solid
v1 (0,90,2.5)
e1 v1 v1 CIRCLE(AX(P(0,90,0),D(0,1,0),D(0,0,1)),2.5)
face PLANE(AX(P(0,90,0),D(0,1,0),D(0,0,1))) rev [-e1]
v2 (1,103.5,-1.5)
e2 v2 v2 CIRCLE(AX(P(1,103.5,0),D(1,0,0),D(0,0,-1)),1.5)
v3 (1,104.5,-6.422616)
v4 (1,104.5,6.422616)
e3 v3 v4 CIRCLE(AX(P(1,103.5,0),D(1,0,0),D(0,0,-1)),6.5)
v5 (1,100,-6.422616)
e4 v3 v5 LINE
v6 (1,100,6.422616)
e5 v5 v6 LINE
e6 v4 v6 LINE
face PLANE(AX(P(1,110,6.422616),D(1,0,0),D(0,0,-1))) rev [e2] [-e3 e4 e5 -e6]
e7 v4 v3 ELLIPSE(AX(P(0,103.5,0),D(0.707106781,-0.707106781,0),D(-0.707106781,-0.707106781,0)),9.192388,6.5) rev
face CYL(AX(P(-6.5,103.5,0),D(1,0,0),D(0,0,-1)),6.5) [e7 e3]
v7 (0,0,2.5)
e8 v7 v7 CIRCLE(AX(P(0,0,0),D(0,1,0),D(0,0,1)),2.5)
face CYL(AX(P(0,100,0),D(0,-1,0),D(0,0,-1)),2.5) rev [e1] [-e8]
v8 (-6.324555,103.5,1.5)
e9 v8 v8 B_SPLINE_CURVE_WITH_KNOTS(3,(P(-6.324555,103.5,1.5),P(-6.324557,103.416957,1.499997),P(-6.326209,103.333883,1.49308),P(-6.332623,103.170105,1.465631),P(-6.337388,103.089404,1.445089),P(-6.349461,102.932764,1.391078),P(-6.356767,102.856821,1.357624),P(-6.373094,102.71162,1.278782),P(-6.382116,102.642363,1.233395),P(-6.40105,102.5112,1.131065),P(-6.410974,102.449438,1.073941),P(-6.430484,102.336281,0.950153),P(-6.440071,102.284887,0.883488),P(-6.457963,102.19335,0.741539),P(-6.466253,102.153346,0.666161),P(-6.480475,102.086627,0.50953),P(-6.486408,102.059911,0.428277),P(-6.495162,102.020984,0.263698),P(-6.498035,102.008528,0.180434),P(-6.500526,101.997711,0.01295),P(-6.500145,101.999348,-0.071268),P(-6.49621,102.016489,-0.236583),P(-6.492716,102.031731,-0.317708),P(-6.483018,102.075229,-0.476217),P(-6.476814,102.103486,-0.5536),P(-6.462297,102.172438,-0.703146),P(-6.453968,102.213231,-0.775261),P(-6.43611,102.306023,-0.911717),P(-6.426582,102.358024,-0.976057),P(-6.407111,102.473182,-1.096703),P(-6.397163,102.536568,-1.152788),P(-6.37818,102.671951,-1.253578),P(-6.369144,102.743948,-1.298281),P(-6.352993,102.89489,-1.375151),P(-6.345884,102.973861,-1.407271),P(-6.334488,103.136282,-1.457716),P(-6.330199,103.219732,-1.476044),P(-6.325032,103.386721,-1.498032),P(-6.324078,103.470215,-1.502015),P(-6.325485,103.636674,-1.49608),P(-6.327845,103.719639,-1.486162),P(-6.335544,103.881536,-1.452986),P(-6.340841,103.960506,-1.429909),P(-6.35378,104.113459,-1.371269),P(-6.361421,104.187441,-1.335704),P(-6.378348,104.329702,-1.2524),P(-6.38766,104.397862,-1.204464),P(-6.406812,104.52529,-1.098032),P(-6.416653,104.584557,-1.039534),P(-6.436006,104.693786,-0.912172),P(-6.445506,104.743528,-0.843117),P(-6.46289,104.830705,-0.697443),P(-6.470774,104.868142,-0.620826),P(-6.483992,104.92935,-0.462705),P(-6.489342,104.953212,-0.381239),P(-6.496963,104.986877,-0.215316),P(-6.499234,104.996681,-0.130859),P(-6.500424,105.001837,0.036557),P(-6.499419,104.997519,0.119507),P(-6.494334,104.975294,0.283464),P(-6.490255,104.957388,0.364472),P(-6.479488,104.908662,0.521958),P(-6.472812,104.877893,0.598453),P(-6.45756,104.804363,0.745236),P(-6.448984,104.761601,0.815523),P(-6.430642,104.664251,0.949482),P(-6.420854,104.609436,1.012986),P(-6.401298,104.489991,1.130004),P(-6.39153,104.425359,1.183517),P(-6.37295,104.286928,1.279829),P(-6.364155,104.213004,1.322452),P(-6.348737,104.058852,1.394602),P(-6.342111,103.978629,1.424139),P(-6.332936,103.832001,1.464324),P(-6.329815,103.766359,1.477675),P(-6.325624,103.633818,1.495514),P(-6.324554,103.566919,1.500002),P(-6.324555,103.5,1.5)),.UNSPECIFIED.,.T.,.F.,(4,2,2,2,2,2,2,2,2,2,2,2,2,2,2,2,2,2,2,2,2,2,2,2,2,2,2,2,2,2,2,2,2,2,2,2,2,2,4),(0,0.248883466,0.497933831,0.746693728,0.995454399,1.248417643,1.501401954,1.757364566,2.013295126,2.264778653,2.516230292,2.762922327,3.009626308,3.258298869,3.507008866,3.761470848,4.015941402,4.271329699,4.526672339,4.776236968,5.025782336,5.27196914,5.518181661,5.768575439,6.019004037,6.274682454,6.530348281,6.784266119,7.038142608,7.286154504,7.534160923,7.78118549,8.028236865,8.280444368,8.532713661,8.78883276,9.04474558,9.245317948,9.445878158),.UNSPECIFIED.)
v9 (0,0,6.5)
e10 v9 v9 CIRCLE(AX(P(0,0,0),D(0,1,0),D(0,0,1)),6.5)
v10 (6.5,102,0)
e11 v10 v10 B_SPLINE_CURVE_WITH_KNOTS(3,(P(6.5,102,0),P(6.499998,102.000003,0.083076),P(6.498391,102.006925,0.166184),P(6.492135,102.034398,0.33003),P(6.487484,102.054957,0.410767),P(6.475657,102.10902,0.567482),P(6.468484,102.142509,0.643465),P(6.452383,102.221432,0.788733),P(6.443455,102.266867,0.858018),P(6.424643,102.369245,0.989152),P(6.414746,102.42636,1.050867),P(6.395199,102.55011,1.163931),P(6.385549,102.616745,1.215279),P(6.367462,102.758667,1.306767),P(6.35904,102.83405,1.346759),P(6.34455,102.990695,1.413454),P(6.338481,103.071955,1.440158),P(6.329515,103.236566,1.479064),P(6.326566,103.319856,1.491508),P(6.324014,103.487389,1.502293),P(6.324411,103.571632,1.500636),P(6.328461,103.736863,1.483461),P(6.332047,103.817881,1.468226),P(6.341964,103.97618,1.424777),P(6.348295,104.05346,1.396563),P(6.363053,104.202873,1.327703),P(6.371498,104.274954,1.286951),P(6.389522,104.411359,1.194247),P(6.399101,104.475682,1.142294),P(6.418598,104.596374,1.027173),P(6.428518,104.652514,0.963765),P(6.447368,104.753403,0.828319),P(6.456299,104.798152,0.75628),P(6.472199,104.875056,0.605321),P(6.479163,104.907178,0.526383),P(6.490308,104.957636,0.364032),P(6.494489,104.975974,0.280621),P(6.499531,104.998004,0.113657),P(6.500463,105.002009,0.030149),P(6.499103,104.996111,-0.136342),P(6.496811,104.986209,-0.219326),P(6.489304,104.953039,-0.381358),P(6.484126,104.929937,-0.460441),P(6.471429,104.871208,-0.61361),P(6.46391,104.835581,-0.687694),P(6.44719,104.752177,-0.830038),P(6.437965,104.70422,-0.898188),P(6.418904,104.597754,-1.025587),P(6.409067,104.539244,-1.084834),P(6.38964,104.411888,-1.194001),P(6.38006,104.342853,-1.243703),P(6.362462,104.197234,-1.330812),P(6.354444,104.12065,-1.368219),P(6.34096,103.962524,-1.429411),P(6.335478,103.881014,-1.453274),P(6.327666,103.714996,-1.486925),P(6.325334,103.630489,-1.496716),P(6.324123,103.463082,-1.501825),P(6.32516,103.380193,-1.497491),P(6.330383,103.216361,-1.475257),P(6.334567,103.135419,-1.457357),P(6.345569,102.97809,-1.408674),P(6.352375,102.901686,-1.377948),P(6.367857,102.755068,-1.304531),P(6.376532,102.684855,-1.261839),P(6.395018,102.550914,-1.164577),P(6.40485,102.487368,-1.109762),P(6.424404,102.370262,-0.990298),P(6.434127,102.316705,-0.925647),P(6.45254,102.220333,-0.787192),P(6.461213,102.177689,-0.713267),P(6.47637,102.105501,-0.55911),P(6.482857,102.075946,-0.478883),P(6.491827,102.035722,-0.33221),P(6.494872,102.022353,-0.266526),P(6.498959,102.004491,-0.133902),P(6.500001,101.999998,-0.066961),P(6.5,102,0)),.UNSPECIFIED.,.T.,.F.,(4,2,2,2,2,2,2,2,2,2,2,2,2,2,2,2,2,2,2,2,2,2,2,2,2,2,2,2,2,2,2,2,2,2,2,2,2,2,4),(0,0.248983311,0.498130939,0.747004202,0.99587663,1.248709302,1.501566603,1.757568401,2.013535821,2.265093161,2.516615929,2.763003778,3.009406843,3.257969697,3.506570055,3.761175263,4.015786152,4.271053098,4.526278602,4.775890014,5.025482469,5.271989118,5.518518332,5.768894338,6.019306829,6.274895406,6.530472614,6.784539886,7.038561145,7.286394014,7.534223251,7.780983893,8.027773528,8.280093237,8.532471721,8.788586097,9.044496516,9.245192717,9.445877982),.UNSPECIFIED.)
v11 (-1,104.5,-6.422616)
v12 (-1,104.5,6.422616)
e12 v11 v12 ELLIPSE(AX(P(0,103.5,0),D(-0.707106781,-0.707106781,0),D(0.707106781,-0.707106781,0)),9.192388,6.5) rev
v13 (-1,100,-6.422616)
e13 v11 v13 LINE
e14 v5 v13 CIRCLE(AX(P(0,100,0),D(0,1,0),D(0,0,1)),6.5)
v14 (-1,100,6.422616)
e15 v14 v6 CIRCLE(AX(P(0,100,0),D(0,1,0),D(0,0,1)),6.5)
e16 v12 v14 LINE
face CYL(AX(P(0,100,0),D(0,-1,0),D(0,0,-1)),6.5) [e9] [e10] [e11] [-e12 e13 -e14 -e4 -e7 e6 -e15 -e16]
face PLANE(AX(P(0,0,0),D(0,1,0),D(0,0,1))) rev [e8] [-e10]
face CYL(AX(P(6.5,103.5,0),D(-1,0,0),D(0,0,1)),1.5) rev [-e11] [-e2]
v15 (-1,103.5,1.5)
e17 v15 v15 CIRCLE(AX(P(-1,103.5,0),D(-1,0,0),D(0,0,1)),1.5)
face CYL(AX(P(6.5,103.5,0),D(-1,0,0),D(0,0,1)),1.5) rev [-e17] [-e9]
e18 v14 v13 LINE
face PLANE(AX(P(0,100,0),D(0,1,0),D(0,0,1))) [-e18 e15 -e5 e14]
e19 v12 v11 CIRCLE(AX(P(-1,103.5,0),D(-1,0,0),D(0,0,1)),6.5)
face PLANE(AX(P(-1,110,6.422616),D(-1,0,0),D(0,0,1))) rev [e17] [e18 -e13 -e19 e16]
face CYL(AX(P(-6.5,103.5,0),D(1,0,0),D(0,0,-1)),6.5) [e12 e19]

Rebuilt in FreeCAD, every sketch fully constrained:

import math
import FreeCAD as App
import Part
import Sketcher
from FreeCAD import Vector
Q = App.Units.Quantity

doc = App.newDocument("Part")
params = doc.addObject("Spreadsheet::Sheet", "Params")
for row, (alias, value) in enumerate([
    ("sketch1_diameter", "13 mm"),
    ("sketch1_diameter2", "5 mm"),
    ("pad1_length", "100 mm"),
    ("sketch2_diameter", "13 mm"),
    ("pad2_length", "10 mm"),
    ("sketch3_radius", "6.5 mm"),
    ("pad3_length", "10 mm"),
    ("sketch4_radius", "6.5 mm"),
    ("sketch5_diameter", "3 mm"),
], start=1):
    params.set(f"A{row}", alias)
    params.set(f"B{row}", "=" + value)
    params.setAlias(f"B{row}", alias)

body = doc.addObject("PartDesign::Body", "Body")

# Sketch on XZ plane
sketch1 = body.newObject("Sketcher::SketchObject", "Sketch")
sketch1.AttachmentSupport = (doc.getObject("XZ_Plane"), [""])
sketch1.MapMode = "FlatFace"
sketch1.addGeometry([
    Part.Circle(Vector(0, 0, 0), Vector(0, 0, 1), 6.5),
    Part.Circle(Vector(0, 0, 0), Vector(0, 0, 1), 2.5),
], False)
sketch1.addConstraint([
    Sketcher.Constraint("Coincident", 0, 3, -1, 1),
    Sketcher.Constraint("Coincident", 1, 3, -1, 1),
    Sketcher.Constraint("Diameter", 0, Q("13 mm")),
    Sketcher.Constraint("Diameter", 1, Q("5 mm")),
])
sketch1.setExpression("Constraints[2]", "Params.sketch1_diameter")
sketch1.setExpression("Constraints[3]", "Params.sketch1_diameter2")
pad1 = body.newObject("PartDesign::Pad", "Pad")
pad1.Profile = sketch1
pad1.setExpression("Length", "Params.pad1_length")
pad1.Reversed = True

# Sketch on XZ plane
sketch2 = body.newObject("Sketcher::SketchObject", "Sketch001")
sketch2.AttachmentSupport = (doc.getObject("XZ_Plane"), [""])
sketch2.MapMode = "FlatFace"
sketch2.AttachmentOffset = App.Placement(Vector(0, 0, -100), App.Rotation())
sketch2.addGeometry(Part.Circle(Vector(0, 0, 0), Vector(0, 0, 1), 6), False)
sketch2.addConstraint([
    Sketcher.Constraint("Coincident", 0, 3, -1, 1),
    Sketcher.Constraint("Diameter", 0, Q("13 mm")),
])
sketch2.setExpression("Constraints[1]", "Params.sketch2_diameter")
pad2 = body.newObject("PartDesign::Pad", "Pad001")
pad2.Profile = sketch2
pad2.setExpression("Length", "Params.pad2_length")

# Sketch on XZ plane
sketch3 = body.newObject("Sketcher::SketchObject", "Sketch002")
sketch3.AttachmentSupport = (doc.getObject("XZ_Plane"), [""])
sketch3.MapMode = "FlatFace"
sketch3.AttachmentOffset = App.Placement(Vector(0, 0, -100), App.Rotation())
sketch3.addGeometry([
    Part.LineSegment(Vector(-1, 6, 0), Vector(-1, -6, 0)),
    Part.ArcOfCircle(Part.Circle(Vector(0, 0, 0), Vector(0, 0, 1), 6), math.radians(99), math.radians(261)),
    Part.LineSegment(Vector(1, -6, 0), Vector(1, 6, 0)),
    Part.ArcOfCircle(Part.Circle(Vector(0, 0, 0), Vector(0, 0, 1), 6), math.radians(-81), math.radians(81)),
], False)
sketch3.addConstraint([
    Sketcher.Constraint("Coincident", 0, 1, 1, 1),
    Sketcher.Constraint("Coincident", 1, 2, 0, 2),
    Sketcher.Constraint("Coincident", 2, 1, 3, 1),
    Sketcher.Constraint("Coincident", 3, 2, 2, 2),
    Sketcher.Constraint("Vertical", 0),
    Sketcher.Constraint("Vertical", 2),
    Sketcher.Constraint("Coincident", 1, 3, -1, 1),
    Sketcher.Constraint("Coincident", 3, 3, -1, 1),
    Sketcher.Constraint("Equal", 1, 3),
    Sketcher.Constraint("Horizontal", 1, 2, 2, 1),
    Sketcher.Constraint("Radius", 1, Q("6.5 mm")),
    Sketcher.Constraint("DistanceX", 0, 1, -1, 1, Q("1 mm")),
])
sketch3.setExpression("Constraints[10]", "Params.sketch3_radius")
pad3 = body.newObject("PartDesign::Pad", "Pad002")
pad3.Profile = sketch3
pad3.setExpression("Length", "Params.pad3_length")
pad3.Reversed = True

# Sketch on YZ plane
sketch4 = body.newObject("Sketcher::SketchObject", "Sketch003")
sketch4.AttachmentSupport = (doc.getObject("YZ_Plane"), [""])
sketch4.MapMode = "FlatFace"
sketch4.addGeometry([
    Part.ArcOfCircle(Part.Circle(Vector(103, 0, 0), Vector(0, 0, 1), 7), math.radians(-89), math.radians(0)),  # 0
    Part.LineSegment(Vector(104, -6, 0), Vector(110, -6, 0)),  # 1
    Part.LineSegment(Vector(110, -6, 0), Vector(110, 0, 0)),  # 2
    Part.LineSegment(Vector(110, 6, 0), Vector(104, 6, 0)),  # 3
    Part.ArcOfCircle(Part.Circle(Vector(103, 0, 0), Vector(0, 0, 1), 7), math.radians(0), math.radians(89)),  # 4
    Part.LineSegment(Vector(110, 0, 0), Vector(110, 6, 0)),  # 5
], False)
sketch4.addConstraint([
    Sketcher.Constraint("Coincident", 0, 1, 1, 1),
    Sketcher.Constraint("Coincident", 1, 2, 2, 1),
    Sketcher.Constraint("Tangent", 2, 2, 0, 2),
    Sketcher.Constraint("Coincident", 3, 2, 4, 2),
    Sketcher.Constraint("Tangent", 4, 1, 5, 1),
    Sketcher.Constraint("Coincident", 5, 2, 3, 1),
    Sketcher.Constraint("Vertical", 2),
    Sketcher.Constraint("Vertical", 5),
    Sketcher.Constraint("Coincident", 4, 3, 0, 3),
    Sketcher.Constraint("Equal", 0, 4),
    Sketcher.Constraint("Symmetric", 0, 1, 3, 2, -1),
    Sketcher.Constraint("Equal", 2, 5),
    Sketcher.Constraint("Radius", 0, Q("6.5 mm")),
    Sketcher.Constraint("DistanceX", -1, 1, 1, 2, Q("110 mm")),
    Sketcher.Constraint("DistanceY", 2, 1, 2, 2, Q("6.422616 mm")),
    Sketcher.Constraint("DistanceY", 0, 1, -1, 1, Q("6.498158 mm")),
])
sketch4.setExpression("Constraints[12]", "Params.sketch4_radius")
pocket1 = body.newObject("PartDesign::Pocket", "Pocket")
pocket1.Profile = sketch4
pocket1.Type = "ThroughAll"
pocket1.Midplane = True

# Sketch on YZ plane
sketch5 = body.newObject("Sketcher::SketchObject", "Sketch004")
sketch5.AttachmentSupport = (doc.getObject("YZ_Plane"), [""])
sketch5.MapMode = "FlatFace"
sketch5.AttachmentOffset = App.Placement(Vector(0, 0, 1), App.Rotation())
sketch5.addGeometry(Part.Circle(Vector(103.5, 0, 0), Vector(0, 0, 1), 1.5), False)
sketch5.addConstraint([
    Sketcher.Constraint("PointOnObject", 0, 3, -1),
    Sketcher.Constraint("Diameter", 0, Q("3 mm")),
    Sketcher.Constraint("DistanceX", -1, 1, 0, 3, Q("103.5 mm")),
])
sketch5.setExpression("Constraints[1]", "Params.sketch5_diameter")
pocket2 = body.newObject("PartDesign::Pocket", "Pocket001")
pocket2.Profile = sketch5
pocket2.Type = "ThroughAll"
pocket2.Midplane = True

doc.recompute()
